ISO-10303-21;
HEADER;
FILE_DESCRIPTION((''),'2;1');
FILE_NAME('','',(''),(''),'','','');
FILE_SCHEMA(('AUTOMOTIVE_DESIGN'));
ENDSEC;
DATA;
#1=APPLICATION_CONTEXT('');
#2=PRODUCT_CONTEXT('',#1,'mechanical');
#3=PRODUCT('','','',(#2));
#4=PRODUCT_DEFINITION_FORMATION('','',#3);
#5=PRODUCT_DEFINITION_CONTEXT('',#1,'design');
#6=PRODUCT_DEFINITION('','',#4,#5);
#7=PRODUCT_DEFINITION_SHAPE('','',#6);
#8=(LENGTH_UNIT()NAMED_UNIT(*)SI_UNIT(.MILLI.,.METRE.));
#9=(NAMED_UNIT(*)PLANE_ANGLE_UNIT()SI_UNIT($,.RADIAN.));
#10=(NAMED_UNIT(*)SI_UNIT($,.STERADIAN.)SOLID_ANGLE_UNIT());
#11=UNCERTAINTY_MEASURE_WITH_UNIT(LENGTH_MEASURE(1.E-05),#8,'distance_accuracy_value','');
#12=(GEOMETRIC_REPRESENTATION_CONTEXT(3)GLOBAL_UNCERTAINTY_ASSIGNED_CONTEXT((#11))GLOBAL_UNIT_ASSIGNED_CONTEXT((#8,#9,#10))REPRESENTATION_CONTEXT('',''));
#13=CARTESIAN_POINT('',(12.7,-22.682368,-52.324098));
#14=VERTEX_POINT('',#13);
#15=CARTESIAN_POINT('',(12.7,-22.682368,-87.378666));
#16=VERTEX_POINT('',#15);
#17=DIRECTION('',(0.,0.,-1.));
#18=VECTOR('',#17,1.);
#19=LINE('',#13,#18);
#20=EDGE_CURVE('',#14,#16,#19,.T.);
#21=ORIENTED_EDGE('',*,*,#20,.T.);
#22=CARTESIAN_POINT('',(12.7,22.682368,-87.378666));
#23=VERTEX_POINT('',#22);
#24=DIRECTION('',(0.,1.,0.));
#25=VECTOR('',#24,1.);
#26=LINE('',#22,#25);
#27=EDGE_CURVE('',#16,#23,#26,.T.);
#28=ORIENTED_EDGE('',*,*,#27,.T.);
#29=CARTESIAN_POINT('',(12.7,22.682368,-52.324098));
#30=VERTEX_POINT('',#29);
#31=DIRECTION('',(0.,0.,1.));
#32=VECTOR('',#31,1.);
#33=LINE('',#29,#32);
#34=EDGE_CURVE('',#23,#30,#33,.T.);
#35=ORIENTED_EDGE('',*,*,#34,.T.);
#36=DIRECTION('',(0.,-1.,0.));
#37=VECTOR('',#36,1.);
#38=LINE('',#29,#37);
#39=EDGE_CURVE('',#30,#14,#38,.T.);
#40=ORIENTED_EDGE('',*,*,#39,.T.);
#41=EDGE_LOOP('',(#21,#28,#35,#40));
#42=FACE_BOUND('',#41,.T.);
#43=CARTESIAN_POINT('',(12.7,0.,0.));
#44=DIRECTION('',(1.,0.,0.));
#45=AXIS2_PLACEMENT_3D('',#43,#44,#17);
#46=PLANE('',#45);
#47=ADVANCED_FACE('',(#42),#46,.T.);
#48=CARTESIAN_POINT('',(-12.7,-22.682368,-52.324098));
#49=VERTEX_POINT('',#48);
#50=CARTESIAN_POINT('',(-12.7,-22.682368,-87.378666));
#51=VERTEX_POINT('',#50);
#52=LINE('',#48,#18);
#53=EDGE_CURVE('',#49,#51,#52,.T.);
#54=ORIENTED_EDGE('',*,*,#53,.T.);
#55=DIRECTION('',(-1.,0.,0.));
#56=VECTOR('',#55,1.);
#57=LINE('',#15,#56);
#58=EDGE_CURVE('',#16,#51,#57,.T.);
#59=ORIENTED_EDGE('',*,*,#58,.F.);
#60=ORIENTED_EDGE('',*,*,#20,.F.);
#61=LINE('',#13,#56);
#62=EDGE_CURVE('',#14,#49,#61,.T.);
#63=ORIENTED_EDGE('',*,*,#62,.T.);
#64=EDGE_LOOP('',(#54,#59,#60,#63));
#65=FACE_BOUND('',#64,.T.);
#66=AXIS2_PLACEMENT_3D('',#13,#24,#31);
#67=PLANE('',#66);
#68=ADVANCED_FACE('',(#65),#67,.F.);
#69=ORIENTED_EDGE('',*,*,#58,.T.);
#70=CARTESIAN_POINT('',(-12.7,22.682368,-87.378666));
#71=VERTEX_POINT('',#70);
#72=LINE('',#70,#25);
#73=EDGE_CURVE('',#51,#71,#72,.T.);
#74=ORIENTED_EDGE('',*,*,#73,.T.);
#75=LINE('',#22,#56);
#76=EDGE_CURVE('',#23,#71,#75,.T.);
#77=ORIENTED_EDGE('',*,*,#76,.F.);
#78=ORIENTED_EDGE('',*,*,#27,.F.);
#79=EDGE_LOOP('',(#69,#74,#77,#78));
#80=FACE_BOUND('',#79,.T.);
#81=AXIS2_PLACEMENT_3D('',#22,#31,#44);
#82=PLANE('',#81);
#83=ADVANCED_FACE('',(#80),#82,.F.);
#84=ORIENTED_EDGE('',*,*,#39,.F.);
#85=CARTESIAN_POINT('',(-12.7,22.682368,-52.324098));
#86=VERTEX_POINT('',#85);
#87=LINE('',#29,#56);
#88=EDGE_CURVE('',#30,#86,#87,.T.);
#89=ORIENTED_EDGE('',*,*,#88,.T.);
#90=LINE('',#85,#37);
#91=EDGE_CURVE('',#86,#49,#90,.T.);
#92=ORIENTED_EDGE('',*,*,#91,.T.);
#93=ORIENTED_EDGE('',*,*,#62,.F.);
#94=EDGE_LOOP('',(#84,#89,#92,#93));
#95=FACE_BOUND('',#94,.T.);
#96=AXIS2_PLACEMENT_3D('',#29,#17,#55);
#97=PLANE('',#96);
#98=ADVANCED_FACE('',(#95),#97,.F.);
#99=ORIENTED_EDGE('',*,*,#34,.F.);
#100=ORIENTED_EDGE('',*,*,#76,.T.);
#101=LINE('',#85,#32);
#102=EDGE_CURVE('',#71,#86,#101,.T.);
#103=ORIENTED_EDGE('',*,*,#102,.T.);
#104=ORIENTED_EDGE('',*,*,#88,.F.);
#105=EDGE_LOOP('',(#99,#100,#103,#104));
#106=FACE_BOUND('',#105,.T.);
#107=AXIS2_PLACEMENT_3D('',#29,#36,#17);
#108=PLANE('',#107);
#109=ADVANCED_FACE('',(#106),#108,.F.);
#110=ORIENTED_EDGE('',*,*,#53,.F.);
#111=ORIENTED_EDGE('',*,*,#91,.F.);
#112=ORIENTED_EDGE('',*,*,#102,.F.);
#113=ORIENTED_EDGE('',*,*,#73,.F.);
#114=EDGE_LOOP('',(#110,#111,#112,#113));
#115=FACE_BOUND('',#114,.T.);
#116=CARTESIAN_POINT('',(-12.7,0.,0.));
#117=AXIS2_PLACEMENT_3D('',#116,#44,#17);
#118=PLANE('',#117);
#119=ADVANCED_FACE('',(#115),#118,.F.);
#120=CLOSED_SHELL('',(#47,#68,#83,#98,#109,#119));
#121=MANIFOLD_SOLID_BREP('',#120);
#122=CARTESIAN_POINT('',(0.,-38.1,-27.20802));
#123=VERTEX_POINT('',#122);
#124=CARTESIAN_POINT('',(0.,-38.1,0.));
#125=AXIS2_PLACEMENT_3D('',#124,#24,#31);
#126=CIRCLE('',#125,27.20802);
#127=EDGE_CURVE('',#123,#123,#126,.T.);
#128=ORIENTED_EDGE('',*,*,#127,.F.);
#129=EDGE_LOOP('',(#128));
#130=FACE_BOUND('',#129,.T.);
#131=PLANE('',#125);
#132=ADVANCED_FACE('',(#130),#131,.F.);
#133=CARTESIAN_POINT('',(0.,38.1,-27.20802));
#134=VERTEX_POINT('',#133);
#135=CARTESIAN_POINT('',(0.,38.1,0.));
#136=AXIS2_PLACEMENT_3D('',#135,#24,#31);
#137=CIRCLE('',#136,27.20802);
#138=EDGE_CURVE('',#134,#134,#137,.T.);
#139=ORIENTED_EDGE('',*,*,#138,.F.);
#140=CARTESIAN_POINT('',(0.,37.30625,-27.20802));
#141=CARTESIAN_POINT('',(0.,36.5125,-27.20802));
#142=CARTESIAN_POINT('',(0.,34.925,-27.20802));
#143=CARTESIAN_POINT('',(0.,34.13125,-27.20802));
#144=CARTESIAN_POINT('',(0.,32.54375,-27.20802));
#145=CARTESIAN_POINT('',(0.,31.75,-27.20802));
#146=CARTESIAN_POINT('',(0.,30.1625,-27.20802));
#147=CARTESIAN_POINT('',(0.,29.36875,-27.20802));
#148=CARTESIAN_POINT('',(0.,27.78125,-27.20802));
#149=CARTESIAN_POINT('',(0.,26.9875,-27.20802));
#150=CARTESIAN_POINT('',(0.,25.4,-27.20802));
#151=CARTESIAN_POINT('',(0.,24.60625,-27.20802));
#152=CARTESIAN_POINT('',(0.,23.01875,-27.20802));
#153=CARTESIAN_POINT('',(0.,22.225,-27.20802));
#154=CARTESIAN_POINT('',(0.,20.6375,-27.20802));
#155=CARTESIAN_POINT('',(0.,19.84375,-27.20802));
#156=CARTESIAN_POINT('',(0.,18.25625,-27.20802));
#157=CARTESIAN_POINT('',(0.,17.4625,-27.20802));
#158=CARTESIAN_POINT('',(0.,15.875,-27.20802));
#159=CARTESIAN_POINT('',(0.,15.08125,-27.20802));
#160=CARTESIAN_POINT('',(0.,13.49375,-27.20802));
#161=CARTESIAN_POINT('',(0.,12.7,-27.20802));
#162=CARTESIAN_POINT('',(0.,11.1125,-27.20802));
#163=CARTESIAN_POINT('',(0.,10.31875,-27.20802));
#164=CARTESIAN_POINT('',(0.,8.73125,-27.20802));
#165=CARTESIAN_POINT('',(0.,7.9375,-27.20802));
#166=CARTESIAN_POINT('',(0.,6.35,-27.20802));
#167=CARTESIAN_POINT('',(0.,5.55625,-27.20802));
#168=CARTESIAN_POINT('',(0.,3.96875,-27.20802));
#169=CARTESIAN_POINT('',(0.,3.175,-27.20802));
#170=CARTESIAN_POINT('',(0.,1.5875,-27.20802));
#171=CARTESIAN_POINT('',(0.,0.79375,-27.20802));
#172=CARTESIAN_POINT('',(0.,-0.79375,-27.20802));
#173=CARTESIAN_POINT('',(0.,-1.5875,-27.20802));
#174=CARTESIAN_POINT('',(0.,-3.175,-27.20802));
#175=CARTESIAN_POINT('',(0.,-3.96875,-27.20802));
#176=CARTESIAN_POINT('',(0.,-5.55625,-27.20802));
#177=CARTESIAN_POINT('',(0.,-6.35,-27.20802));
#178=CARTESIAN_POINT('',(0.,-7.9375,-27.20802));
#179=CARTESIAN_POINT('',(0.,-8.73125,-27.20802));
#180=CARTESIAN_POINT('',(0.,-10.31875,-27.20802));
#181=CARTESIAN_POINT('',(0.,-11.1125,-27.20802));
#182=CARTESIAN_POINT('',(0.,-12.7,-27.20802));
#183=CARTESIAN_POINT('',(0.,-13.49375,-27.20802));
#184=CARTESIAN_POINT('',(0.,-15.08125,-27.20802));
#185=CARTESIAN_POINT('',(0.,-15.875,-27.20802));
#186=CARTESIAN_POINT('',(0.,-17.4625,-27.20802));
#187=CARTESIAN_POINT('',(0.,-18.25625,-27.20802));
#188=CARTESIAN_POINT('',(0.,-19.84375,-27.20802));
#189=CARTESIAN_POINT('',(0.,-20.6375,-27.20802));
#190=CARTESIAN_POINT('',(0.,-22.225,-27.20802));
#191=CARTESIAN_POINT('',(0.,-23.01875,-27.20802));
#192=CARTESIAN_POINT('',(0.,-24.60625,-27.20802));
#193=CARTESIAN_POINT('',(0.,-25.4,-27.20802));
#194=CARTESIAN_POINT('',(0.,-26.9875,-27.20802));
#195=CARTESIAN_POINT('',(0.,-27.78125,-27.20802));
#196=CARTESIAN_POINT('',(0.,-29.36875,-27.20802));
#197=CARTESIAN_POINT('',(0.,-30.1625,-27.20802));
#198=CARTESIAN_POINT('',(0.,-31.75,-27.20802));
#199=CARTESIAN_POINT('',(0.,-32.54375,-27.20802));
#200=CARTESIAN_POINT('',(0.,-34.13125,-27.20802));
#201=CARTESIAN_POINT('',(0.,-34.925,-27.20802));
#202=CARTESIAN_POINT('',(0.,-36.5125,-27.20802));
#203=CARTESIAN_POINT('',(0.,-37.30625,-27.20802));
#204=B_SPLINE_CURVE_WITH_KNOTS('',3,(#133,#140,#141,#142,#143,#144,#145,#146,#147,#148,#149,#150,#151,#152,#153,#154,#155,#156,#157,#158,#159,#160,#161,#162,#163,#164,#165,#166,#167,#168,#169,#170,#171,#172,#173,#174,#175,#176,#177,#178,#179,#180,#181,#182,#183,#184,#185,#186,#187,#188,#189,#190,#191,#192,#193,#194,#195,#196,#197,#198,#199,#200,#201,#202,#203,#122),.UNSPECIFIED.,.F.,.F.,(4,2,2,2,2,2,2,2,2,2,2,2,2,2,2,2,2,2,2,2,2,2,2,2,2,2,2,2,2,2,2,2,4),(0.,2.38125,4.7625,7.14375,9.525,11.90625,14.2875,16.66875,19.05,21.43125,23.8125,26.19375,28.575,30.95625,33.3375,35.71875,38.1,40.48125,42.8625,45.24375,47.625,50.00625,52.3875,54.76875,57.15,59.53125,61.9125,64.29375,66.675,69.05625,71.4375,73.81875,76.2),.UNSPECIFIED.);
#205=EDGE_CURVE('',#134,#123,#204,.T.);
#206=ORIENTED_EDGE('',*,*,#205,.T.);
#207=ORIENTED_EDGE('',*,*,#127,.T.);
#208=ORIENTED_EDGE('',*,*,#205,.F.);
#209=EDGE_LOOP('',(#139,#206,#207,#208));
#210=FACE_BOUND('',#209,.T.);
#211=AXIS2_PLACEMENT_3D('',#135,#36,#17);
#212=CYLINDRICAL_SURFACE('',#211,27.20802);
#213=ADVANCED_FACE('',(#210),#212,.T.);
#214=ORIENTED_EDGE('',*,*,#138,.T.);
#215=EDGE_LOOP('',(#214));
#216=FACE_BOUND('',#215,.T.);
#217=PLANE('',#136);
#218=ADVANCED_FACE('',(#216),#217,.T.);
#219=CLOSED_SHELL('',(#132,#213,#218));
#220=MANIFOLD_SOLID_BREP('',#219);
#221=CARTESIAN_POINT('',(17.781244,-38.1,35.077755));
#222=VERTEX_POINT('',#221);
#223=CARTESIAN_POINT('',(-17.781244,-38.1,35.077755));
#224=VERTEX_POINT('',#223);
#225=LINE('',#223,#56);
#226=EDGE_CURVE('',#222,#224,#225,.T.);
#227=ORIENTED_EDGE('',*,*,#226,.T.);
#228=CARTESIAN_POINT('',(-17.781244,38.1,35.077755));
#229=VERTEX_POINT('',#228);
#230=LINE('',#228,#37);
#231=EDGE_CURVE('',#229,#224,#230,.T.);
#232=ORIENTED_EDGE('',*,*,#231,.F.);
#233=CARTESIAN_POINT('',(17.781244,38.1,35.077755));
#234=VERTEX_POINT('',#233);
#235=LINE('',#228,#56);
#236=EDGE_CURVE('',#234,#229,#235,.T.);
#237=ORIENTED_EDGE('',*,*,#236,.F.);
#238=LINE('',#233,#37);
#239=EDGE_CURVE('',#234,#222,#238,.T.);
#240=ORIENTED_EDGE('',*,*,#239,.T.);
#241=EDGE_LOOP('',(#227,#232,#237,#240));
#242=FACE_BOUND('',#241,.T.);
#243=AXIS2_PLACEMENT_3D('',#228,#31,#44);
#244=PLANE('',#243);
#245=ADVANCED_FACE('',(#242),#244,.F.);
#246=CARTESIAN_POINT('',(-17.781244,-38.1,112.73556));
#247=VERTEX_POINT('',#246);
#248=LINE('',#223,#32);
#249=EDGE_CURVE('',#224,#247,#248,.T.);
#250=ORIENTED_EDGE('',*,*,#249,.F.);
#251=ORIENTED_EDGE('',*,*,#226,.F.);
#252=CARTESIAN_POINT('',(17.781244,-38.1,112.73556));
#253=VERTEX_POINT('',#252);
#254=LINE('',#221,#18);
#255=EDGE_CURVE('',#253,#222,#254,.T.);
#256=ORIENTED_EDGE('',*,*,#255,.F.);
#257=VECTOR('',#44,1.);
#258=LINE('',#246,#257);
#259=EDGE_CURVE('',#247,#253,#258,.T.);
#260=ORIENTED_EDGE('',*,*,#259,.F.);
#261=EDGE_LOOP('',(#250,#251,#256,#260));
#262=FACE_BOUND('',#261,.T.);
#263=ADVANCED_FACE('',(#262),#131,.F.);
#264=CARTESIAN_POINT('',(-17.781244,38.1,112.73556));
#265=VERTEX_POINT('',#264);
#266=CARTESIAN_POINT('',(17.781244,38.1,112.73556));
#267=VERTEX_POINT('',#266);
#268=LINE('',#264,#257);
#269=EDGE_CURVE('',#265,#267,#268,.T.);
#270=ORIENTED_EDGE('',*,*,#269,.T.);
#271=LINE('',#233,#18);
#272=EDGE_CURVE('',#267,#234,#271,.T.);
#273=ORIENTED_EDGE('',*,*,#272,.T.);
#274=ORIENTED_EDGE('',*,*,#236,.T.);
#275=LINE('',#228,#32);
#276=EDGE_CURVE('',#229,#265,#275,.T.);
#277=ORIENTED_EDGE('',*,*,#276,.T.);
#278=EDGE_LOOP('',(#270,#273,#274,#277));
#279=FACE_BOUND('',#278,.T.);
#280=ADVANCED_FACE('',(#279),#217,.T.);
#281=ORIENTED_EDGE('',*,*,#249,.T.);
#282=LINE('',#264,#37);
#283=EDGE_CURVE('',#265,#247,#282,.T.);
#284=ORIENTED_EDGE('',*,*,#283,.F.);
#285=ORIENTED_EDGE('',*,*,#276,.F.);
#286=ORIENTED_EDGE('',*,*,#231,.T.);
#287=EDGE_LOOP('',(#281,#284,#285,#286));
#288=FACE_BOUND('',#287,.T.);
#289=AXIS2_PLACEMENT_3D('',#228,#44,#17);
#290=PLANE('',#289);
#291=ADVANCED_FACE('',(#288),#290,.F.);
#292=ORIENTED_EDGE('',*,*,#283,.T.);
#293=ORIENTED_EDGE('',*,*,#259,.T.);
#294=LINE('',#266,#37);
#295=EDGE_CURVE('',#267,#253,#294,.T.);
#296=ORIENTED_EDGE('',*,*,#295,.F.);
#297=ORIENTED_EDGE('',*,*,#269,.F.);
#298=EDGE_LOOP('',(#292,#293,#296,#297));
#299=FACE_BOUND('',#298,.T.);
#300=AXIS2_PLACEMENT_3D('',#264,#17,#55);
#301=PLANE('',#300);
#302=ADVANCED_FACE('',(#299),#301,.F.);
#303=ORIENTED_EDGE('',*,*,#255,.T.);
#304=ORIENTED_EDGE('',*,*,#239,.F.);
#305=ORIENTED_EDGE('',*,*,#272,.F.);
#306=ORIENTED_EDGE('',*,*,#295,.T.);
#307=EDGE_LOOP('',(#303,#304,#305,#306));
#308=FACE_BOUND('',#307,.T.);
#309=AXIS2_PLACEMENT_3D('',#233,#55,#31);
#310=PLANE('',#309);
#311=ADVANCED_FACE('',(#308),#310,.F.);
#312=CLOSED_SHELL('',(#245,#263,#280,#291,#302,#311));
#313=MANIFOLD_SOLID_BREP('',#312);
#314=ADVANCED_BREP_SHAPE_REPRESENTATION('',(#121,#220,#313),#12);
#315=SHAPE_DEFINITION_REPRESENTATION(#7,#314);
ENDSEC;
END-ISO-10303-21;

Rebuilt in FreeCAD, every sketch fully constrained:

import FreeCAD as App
import Part
import Sketcher
from FreeCAD import Vector
Q = App.Units.Quantity


def add_polygon(sketch, points):
    """Adds a closed chain of lines whose ends are joined by coincident constraints."""
    first, n = sketch.GeometryCount, len(points)
    for a, b in zip(points, points[1:] + points[:1]):
        sketch.addGeometry(Part.LineSegment(App.Vector(*a, 0), App.Vector(*b, 0)), False)
    for i in range(n):
        sketch.addConstraint(Sketcher.Constraint("Coincident", first + i, 2, first + (i + 1) % n, 1))

doc = App.newDocument("Part")
body = doc.addObject("PartDesign::Body", "Body")

# Sketch on YZ plane
sketch1 = doc.addObject("Sketcher::SketchObject", "Sketch")
body.addObject(sketch1)
sketch1.AttachmentSupport = (doc.YZ_Plane, [""])
sketch1.MapMode = "FlatFace"
add_polygon(sketch1, [(23, -52), (-23, -52), (-23, -87), (23, -87)])  # lines 0-3
sketch1.addConstraint([
    Sketcher.Constraint("Horizontal", 0),
    Sketcher.Constraint("Vertical", 1),
    Sketcher.Constraint("Horizontal", 2),
    Sketcher.Constraint("Vertical", 3),
    Sketcher.Constraint("DistanceY", 1, 2, 1, 1, 35.054568),
    Sketcher.Constraint("DistanceX", 0, 2, 0, 1, 45.364735),
    Sketcher.Constraint("DistanceX", 0, 2, -1, 1, 22.682368),
    Sketcher.Constraint("DistanceY", 0, 2, -1, 1, 52.324098),
])
pad1 = doc.addObject("PartDesign::Pad", "Pad")
body.addObject(pad1)
pad1.Profile = sketch1
pad1.Length = Q("1 in")
pad1.Midplane = True
body2 = doc.addObject("PartDesign::Body", "Body001")

# Sketch on XZ plane
sketch2 = doc.addObject("Sketcher::SketchObject", "Sketch001")
body2.addObject(sketch2)
sketch2.AttachmentSupport = (doc.getObject("XZ_Plane001"), [""])
sketch2.MapMode = "FlatFace"
sketch2.addGeometry(Part.Circle(Vector(0, 0, 0), Vector(0, 0, 1), 27), False)
sketch2.addConstraint([
    Sketcher.Constraint("Coincident", 0, 3, -1, 1),
    Sketcher.Constraint("Diameter", 0, 54.41604),
])
pad2 = doc.addObject("PartDesign::Pad", "Pad001")
body2.addObject(pad2)
pad2.Profile = sketch2
pad2.Length = Q("3 in")
pad2.Midplane = True
body3 = doc.addObject("PartDesign::Body", "Body002")

# Sketch on XZ plane
sketch3 = doc.addObject("Sketcher::SketchObject", "Sketch002")
body3.addObject(sketch3)
sketch3.AttachmentSupport = (doc.getObject("XZ_Plane002"), [""])
sketch3.MapMode = "FlatFace"
add_polygon(sketch3, [(-18, 35), (-18, 113), (18, 113), (18, 35)])  # lines 0-3
sketch3.addConstraint([
    Sketcher.Constraint("Vertical", 0),
    Sketcher.Constraint("Horizontal", 1),
    Sketcher.Constraint("Vertical", 2),
    Sketcher.Constraint("Horizontal", 3),
    Sketcher.Constraint("DistanceX", 1, 1, 1, 2, 35.562488),
    Sketcher.Constraint("DistanceY", 0, 1, 0, 2, 77.657805),
    Sketcher.Constraint("DistanceY", -1, 1, 0, 2, 112.73556),
    Sketcher.Constraint("DistanceX", 0, 2, -1, 1, 17.781244),
])
pad3 = doc.addObject("PartDesign::Pad", "Pad002")
body3.addObject(pad3)
pad3.Profile = sketch3
pad3.Length = Q("3 in")
pad3.Midplane = True

doc.recompute()
